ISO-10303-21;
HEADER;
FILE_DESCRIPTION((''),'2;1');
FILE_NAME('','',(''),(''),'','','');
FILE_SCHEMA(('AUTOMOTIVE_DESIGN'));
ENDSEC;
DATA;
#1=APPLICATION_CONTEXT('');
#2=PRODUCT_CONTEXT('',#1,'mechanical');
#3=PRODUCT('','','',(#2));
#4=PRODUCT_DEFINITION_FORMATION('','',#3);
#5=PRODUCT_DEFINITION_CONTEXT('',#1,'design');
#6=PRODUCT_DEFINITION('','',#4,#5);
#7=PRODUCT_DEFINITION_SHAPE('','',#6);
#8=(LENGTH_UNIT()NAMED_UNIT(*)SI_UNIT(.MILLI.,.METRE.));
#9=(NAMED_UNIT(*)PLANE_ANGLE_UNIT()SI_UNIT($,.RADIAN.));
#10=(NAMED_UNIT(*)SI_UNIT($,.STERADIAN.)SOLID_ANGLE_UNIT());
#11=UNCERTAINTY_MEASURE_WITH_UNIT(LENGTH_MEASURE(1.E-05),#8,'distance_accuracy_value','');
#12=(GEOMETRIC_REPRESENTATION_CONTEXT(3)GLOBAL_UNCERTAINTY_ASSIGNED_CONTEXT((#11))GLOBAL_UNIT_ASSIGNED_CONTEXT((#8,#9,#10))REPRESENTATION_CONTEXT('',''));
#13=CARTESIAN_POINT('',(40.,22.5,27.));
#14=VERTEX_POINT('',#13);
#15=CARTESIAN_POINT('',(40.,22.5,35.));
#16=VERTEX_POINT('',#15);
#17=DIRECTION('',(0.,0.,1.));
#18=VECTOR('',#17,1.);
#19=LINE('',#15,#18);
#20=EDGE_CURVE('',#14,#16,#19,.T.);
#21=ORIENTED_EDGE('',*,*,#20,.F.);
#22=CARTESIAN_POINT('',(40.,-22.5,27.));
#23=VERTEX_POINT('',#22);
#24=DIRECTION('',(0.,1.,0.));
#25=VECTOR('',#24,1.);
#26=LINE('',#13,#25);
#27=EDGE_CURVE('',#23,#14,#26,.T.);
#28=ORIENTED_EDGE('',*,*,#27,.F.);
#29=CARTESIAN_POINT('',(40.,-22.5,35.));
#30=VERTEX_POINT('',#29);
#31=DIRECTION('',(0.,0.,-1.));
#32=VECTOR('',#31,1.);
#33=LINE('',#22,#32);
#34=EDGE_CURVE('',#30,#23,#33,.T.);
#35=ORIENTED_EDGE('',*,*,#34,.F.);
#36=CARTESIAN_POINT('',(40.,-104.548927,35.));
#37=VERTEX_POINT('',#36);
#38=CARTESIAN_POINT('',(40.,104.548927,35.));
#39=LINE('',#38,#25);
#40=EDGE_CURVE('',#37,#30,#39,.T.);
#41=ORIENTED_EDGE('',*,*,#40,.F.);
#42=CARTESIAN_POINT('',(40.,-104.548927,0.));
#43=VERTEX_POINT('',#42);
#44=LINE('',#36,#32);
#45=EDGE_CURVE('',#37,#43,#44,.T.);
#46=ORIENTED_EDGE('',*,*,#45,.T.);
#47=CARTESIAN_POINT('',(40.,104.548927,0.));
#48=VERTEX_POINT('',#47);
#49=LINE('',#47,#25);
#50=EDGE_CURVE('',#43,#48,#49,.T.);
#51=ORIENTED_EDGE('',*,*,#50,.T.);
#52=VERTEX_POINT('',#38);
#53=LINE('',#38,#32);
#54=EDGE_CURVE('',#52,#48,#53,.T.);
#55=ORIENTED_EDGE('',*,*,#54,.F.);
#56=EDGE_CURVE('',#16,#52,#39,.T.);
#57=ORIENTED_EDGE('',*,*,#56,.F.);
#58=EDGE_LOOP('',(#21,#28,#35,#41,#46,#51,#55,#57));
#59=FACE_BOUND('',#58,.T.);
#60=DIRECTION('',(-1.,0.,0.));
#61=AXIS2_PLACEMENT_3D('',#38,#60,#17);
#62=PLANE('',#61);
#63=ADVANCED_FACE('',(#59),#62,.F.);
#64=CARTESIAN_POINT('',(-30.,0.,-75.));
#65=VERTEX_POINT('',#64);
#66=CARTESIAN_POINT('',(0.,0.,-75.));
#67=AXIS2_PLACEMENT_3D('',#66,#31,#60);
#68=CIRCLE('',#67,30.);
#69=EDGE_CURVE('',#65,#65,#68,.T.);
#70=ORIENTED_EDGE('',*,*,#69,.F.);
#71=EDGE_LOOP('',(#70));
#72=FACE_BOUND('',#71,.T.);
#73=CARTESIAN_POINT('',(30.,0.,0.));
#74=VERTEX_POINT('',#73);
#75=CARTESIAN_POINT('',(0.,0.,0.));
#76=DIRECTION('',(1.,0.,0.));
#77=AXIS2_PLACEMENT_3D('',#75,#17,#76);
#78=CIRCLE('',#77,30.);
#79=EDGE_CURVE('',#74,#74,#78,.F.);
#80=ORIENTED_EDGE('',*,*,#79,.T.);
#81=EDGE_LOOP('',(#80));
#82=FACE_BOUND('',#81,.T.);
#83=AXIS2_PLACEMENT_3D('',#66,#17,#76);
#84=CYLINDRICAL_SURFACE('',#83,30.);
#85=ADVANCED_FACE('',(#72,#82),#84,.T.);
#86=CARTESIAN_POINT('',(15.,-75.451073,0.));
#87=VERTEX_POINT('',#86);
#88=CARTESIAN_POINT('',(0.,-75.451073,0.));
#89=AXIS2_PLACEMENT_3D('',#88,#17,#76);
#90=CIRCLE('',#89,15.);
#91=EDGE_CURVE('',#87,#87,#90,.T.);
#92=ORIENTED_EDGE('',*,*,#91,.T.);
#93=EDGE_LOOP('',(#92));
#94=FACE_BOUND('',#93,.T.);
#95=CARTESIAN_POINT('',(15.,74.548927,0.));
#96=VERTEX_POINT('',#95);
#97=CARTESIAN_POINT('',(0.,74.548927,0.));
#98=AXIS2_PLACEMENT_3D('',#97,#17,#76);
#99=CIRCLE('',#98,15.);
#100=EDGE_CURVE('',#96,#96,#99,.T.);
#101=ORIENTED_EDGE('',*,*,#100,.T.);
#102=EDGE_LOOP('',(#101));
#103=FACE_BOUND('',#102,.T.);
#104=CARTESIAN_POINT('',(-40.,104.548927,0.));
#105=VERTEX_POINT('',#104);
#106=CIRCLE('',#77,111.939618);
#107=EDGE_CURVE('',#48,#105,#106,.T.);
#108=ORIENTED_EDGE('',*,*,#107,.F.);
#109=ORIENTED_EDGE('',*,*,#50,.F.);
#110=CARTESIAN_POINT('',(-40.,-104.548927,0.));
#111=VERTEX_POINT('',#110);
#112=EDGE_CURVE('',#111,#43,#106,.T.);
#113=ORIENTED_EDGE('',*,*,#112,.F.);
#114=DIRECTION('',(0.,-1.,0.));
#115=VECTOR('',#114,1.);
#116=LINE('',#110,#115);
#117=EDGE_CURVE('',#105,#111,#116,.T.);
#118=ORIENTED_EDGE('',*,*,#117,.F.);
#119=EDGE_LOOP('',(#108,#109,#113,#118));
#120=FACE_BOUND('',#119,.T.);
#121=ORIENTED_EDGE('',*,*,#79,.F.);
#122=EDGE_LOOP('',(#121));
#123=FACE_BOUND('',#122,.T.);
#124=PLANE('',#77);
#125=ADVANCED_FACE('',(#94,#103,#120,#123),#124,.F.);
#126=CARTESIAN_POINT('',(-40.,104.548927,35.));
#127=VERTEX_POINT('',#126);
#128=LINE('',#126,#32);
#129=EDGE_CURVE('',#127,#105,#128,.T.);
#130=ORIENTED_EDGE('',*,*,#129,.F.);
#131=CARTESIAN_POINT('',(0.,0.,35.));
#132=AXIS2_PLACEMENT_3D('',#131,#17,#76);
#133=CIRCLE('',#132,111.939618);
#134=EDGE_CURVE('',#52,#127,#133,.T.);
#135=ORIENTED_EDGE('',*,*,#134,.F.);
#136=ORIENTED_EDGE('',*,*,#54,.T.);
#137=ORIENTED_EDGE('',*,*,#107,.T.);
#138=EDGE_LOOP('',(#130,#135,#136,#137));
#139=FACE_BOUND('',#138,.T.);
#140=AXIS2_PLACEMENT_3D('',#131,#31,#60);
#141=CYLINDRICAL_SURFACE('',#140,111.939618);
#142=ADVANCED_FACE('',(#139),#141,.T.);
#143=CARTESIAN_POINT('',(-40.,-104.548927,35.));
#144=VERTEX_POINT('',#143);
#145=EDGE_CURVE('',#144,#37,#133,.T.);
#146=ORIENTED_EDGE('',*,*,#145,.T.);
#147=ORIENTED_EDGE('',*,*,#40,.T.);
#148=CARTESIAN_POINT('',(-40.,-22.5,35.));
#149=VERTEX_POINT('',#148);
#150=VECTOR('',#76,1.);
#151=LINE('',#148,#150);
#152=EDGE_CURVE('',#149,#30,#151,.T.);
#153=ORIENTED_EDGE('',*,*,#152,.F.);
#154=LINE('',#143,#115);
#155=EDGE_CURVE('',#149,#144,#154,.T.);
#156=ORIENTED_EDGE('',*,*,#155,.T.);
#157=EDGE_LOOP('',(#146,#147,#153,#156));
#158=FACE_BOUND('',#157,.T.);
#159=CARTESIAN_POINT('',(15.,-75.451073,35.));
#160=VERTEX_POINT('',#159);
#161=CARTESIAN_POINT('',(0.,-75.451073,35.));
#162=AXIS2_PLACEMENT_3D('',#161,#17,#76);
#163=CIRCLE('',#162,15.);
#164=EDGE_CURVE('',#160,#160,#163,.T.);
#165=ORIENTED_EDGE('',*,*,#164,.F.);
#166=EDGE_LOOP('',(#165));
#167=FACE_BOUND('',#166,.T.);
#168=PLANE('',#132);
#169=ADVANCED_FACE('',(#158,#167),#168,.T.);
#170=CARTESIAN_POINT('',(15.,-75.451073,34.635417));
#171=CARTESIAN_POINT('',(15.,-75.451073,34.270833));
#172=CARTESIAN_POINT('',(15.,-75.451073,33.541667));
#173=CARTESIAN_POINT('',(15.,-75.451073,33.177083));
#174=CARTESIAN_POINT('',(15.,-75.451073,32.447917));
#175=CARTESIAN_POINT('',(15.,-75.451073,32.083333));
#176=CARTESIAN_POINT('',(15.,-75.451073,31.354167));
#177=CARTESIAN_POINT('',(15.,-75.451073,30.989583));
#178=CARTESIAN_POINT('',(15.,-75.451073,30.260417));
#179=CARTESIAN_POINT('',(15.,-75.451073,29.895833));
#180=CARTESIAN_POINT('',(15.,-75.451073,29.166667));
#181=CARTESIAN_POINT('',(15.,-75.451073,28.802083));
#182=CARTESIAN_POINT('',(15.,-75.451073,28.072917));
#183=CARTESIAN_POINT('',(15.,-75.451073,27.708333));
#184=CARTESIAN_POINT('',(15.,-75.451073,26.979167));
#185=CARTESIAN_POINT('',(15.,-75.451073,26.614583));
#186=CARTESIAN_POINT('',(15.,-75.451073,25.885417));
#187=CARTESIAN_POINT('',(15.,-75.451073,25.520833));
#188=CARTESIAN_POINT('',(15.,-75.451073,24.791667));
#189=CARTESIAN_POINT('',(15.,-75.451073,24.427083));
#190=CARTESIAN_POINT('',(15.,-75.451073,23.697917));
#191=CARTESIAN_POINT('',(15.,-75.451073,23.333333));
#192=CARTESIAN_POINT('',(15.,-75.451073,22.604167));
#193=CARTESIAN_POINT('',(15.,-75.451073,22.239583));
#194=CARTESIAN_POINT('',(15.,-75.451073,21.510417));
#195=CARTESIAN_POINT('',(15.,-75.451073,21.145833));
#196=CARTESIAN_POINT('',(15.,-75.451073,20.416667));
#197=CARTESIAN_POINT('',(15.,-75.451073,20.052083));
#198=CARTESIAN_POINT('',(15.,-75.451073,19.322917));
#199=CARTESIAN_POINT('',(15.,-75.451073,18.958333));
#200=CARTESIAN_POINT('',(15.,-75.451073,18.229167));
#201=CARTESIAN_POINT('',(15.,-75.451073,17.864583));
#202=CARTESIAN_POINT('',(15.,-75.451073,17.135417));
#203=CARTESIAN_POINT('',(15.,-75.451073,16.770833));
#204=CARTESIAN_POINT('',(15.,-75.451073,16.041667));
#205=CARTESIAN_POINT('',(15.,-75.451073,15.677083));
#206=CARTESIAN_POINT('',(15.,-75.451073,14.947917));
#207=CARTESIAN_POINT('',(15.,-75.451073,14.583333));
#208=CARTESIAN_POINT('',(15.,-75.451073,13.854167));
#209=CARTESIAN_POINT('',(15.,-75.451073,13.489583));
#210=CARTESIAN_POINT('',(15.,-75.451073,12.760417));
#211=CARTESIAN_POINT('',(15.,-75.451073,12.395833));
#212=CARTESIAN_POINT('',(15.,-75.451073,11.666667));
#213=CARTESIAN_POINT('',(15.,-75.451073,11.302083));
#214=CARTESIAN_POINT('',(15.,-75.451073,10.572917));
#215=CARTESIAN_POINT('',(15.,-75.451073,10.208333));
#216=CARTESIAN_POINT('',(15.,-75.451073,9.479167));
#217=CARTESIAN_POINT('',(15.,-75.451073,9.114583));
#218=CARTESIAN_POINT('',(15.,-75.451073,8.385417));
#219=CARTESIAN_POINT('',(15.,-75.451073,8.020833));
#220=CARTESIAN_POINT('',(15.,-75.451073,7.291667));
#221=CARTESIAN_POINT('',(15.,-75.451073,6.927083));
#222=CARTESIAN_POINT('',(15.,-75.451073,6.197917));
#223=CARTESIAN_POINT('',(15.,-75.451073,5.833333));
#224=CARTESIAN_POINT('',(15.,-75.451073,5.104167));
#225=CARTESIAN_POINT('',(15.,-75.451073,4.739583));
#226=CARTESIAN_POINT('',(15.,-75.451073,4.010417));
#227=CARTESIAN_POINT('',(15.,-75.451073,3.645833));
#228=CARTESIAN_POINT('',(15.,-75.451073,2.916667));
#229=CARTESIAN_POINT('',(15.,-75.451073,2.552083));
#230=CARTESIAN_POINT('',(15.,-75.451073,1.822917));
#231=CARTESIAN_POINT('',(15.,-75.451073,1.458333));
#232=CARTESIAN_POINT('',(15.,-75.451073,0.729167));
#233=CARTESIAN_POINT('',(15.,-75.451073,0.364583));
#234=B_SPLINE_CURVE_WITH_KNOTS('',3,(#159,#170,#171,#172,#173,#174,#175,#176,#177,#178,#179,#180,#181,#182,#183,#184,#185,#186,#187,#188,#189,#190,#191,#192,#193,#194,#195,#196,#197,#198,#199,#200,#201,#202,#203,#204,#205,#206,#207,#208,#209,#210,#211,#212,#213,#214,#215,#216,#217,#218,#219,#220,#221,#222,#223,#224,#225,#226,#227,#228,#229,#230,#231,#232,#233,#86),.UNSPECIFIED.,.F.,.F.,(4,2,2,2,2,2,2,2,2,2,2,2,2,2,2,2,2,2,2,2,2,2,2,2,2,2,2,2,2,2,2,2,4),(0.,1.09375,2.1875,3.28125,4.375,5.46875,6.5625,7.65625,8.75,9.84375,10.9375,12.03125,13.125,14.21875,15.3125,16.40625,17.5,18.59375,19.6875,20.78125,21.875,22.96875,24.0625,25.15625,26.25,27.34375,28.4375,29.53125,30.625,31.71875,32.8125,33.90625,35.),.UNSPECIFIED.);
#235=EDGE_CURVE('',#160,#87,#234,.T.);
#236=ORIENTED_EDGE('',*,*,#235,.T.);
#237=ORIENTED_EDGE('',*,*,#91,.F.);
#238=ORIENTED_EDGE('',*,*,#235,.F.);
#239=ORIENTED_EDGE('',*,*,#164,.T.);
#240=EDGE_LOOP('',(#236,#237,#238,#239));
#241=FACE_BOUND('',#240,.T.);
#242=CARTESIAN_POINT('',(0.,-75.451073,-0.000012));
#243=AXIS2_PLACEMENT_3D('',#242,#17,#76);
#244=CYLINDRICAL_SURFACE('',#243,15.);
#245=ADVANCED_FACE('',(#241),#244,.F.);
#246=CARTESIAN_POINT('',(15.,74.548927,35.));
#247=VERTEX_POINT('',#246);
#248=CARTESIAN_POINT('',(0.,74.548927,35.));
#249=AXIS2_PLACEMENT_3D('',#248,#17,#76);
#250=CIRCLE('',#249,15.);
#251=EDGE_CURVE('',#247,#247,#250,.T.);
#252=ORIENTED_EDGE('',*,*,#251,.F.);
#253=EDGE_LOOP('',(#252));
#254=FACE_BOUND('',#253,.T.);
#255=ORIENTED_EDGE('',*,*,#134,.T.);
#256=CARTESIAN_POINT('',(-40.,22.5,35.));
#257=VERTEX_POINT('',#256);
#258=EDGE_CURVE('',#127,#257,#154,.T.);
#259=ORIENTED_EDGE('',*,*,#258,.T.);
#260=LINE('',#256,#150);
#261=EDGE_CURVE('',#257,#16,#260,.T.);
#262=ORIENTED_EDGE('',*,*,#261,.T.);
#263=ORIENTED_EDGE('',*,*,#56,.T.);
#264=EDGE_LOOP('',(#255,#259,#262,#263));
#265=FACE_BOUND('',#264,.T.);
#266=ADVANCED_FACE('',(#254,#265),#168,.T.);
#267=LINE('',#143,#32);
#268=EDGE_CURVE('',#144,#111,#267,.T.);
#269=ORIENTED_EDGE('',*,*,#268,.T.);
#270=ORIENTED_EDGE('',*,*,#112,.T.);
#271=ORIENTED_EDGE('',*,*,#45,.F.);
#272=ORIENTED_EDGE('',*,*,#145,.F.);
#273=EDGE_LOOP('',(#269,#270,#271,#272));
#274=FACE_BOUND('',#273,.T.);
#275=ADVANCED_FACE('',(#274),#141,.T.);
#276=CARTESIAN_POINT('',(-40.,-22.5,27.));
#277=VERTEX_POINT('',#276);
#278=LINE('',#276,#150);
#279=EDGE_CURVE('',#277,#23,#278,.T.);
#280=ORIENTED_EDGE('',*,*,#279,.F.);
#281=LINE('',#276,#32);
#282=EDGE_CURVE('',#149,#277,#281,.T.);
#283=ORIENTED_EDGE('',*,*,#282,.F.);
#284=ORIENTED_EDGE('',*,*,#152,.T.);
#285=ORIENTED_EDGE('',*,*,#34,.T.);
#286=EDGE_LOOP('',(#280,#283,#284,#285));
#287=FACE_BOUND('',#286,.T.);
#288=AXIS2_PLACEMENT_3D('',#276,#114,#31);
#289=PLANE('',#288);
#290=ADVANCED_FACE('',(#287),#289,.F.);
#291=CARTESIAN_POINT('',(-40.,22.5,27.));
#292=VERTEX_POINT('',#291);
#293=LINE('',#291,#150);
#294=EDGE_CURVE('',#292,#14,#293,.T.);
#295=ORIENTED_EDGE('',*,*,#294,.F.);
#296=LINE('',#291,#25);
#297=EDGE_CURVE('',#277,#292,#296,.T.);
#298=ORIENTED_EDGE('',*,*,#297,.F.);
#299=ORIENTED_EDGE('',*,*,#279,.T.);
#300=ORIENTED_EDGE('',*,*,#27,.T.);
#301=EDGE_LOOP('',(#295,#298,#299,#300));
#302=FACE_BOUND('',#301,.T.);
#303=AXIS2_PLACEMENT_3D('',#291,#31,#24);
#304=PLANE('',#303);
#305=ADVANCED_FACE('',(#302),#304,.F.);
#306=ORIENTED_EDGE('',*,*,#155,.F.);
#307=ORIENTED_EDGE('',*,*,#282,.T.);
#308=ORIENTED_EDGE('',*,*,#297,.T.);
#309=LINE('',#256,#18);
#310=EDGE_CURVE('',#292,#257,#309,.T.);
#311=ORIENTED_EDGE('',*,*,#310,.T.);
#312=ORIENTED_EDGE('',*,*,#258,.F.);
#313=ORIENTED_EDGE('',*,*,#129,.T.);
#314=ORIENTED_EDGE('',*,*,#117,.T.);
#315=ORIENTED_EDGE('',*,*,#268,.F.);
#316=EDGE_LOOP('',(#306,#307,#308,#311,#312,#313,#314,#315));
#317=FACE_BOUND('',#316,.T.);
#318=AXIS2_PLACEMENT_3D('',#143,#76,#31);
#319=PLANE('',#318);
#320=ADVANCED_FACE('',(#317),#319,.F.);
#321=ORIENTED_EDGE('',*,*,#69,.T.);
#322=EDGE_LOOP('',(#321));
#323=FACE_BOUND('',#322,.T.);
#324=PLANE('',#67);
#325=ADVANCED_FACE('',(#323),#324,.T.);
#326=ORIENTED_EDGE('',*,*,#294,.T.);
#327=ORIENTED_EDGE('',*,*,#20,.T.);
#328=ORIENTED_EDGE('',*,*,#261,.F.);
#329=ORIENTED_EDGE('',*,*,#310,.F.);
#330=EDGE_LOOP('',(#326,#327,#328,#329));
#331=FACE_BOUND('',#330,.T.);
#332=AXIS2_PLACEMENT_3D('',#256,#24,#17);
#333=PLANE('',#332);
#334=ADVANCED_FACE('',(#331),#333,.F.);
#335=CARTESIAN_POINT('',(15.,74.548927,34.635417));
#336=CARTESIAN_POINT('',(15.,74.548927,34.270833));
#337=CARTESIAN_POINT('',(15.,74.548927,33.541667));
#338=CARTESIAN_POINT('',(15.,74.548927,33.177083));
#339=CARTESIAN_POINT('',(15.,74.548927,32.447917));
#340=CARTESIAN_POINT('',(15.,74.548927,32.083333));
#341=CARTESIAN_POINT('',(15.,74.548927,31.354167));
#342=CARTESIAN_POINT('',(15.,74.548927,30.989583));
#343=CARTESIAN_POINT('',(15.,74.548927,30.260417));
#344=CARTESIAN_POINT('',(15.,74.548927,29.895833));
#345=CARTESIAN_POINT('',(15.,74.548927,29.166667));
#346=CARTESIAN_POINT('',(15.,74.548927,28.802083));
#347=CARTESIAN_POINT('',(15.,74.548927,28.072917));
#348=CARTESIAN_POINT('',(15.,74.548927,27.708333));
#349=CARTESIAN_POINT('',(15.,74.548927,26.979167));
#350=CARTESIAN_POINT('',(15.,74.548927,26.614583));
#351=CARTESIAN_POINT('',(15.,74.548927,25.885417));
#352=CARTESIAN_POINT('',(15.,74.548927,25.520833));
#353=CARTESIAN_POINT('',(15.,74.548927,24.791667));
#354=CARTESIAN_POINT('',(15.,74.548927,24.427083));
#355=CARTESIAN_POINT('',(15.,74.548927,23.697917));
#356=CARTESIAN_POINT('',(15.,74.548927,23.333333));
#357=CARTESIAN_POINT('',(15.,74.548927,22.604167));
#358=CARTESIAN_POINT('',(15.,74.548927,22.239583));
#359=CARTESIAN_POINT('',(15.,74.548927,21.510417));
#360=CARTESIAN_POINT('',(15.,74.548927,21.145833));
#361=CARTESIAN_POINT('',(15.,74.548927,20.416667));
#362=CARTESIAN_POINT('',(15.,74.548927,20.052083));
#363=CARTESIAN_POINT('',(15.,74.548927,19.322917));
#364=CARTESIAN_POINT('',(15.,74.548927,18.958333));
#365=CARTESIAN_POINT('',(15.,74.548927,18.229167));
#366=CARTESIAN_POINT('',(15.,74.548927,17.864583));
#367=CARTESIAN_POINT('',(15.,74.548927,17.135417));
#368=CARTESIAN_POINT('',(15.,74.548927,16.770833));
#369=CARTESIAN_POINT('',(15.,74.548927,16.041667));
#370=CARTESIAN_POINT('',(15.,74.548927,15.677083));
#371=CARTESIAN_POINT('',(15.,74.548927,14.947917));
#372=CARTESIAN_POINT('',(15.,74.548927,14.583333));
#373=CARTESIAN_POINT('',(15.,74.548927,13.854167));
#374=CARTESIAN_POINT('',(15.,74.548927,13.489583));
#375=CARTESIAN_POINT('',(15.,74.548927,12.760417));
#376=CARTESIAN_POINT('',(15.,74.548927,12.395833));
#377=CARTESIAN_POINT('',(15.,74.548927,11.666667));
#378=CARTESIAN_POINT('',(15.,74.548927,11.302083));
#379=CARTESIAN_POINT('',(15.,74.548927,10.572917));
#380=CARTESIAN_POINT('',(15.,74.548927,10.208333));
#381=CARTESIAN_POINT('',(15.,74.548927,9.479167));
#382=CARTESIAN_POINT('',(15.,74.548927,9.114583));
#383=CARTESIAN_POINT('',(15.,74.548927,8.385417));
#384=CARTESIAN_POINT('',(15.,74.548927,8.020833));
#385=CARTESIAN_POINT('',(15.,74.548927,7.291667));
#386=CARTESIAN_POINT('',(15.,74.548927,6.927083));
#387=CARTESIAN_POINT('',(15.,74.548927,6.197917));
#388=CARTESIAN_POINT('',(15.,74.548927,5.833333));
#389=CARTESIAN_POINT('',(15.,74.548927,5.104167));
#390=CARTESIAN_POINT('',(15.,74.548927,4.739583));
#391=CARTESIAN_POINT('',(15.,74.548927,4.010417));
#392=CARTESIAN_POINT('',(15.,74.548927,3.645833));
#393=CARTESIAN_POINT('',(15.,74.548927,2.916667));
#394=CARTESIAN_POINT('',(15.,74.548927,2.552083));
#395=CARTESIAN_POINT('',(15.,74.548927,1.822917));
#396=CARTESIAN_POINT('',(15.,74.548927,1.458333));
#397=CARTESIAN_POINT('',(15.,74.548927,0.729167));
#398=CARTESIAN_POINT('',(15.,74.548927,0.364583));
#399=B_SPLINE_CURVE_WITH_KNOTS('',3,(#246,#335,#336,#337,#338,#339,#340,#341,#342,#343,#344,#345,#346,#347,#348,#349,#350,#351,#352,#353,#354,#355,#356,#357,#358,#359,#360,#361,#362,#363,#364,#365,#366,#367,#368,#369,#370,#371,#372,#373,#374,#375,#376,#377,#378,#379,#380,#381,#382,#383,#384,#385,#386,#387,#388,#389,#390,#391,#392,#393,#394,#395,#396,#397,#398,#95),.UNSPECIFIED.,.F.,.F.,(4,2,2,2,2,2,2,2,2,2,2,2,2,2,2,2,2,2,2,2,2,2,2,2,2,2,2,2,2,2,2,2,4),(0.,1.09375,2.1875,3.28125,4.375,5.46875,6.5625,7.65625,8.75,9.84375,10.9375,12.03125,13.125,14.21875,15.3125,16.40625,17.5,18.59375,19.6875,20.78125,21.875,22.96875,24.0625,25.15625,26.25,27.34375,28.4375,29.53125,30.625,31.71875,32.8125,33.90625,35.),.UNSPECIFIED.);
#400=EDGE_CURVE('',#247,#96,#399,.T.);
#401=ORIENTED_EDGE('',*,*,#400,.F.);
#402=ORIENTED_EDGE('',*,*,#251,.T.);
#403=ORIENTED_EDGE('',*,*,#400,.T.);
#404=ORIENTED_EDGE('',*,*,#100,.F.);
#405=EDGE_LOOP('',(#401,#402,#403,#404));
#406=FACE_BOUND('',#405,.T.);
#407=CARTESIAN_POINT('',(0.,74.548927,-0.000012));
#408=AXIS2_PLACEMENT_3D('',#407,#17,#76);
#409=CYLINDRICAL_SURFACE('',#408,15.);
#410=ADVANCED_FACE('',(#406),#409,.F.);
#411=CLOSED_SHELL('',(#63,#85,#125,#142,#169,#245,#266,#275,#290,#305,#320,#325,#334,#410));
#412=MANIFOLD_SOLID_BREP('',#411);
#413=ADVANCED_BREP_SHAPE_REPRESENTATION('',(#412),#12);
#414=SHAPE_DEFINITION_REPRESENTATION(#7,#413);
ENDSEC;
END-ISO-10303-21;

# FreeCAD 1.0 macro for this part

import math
import FreeCAD as App
import Part
import Sketcher
from FreeCAD import Vector

doc = App.newDocument("Part")
body = doc.addObject("PartDesign::Body", "Body")

# Sketch on XY plane
sketch1 = body.newObject("Sketcher::SketchObject", "Sketch")
sketch1.AttachmentSupport = (doc.getObject("XY_Plane"), [""])
sketch1.MapMode = "FlatFace"
sketch1.addGeometry([
    Part.LineSegment(Vector(-40, 105, 0), Vector(-40, -105, 0)),
    Part.ArcOfCircle(Part.Circle(Vector(0, 0, 0), Vector(0, 0, 1), 112), math.radians(-111), math.radians(-69)),
    Part.LineSegment(Vector(40, -105, 0), Vector(40, 105, 0)),
    Part.ArcOfCircle(Part.Circle(Vector(0, 0, 0), Vector(0, 0, 1), 112), math.radians(69), math.radians(111)),
], False)
sketch1.addConstraint([
    Sketcher.Constraint("Coincident", 0, 2, 1, 1),
    Sketcher.Constraint("Coincident", 1, 2, 2, 1),
    Sketcher.Constraint("Coincident", 2, 2, 3, 1),
    Sketcher.Constraint("Coincident", 3, 2, 0, 1),
    Sketcher.Constraint("Vertical", 0),
    Sketcher.Constraint("Vertical", 2),
    Sketcher.Constraint("Coincident", 1, 3, -1, 1),
    Sketcher.Constraint("Coincident", 3, 3, -1, 1),
    Sketcher.Constraint("Equal", 1, 3),
    Sketcher.Constraint("Horizontal", 0, 2, 1, 2),
    Sketcher.Constraint("DistanceX", 0, 2, -1, 1, 40.0),
    Sketcher.Constraint("Radius", 1, 111.939619),
])
pad1 = body.newObject("PartDesign::Pad", "Pad")
pad1.Profile = sketch1
pad1.Length = 35

# Sketch on YZ plane
sketch2 = body.newObject("Sketcher::SketchObject", "Sketch001")
sketch2.AttachmentSupport = (doc.getObject("YZ_Plane"), [""])
sketch2.MapMode = "FlatFace"
sketch2.addGeometry([
    Part.LineSegment(Vector(22, 35, 0), Vector(-22, 35, 0)),
    Part.LineSegment(Vector(-22, 35, 0), Vector(-22, 27, 0)),
    Part.LineSegment(Vector(-22, 27, 0), Vector(22, 27, 0)),
    Part.LineSegment(Vector(22, 27, 0), Vector(22, 35, 0)),
], False)
sketch2.addConstraint([
    Sketcher.Constraint("Coincident", 0, 2, 1, 1),
    Sketcher.Constraint("Coincident", 1, 2, 2, 1),
    Sketcher.Constraint("Coincident", 2, 2, 3, 1),
    Sketcher.Constraint("Coincident", 3, 2, 0, 1),
    Sketcher.Constraint("Horizontal", 0),
    Sketcher.Constraint("Vertical", 1),
    Sketcher.Constraint("Horizontal", 2),
    Sketcher.Constraint("Vertical", 3),
    Sketcher.Constraint("DistanceX", 0, 2, 0, 1, 45.0),
    Sketcher.Constraint("DistanceY", 1, 2, 1, 1, 8.0),
    Sketcher.Constraint("DistanceY", -1, 1, 0, 2, 35.0),
    Sketcher.Constraint("DistanceX", 0, 2, -1, 1, 22.5),
])
pocket1 = body.newObject("PartDesign::Pocket", "Pocket")
pocket1.Profile = sketch2
pocket1.Type = "ThroughAll"
pocket1.Midplane = True

# Sketch on XY plane
sketch3 = body.newObject("Sketcher::SketchObject", "Sketch002")
sketch3.AttachmentSupport = (doc.getObject("XY_Plane"), [""])
sketch3.MapMode = "FlatFace"
sketch3.addGeometry(Part.Circle(Vector(0, 75, 0), Vector(0, 0, 1), 15), False)
sketch3.addConstraint([
    Sketcher.Constraint("PointOnObject", 0, 3, -2),
    Sketcher.Constraint("Diameter", 0, 30.0),
    Sketcher.Constraint("DistanceY", -1, 1, 0, 3, 74.548927),
])
pocket2 = body.newObject("PartDesign::Pocket", "Pocket001")
pocket2.Profile = sketch3
pocket2.Type = "ThroughAll"
pocket2.Midplane = True

# Sketch on XY plane
sketch4 = body.newObject("Sketcher::SketchObject", "Sketch003")
sketch4.AttachmentSupport = (doc.getObject("XY_Plane"), [""])
sketch4.MapMode = "FlatFace"
sketch4.addGeometry(Part.Circle(Vector(0, -75, 0), Vector(0, 0, 1), 15), False)
sketch4.addConstraint([
    Sketcher.Constraint("PointOnObject", 0, 3, -2),
    Sketcher.Constraint("Diameter", 0, 30.0),
    Sketcher.Constraint("DistanceY", 0, 3, -1, 1, 75.451073),
])
pocket3 = body.newObject("PartDesign::Pocket", "Pocket002")
pocket3.Profile = sketch4
pocket3.Type = "ThroughAll"
pocket3.Midplane = True

# Sketch on XY plane
sketch5 = body.newObject("Sketcher::SketchObject", "Sketch004")
sketch5.AttachmentSupport = (doc.getObject("XY_Plane"), [""])
sketch5.MapMode = "FlatFace"
sketch5.addGeometry(Part.Circle(Vector(0, 0, 0), Vector(0, 0, 1), 30), False)
sketch5.addConstraint([
    Sketcher.Constraint("Coincident", 0, 3, -1, 1),
    Sketcher.Constraint("Diameter", 0, 60.0),
])
pad2 = body.newObject("PartDesign::Pad", "Pad001")
pad2.Profile = sketch5
pad2.Length = 75
pad2.Reversed = True

doc.recompute()
